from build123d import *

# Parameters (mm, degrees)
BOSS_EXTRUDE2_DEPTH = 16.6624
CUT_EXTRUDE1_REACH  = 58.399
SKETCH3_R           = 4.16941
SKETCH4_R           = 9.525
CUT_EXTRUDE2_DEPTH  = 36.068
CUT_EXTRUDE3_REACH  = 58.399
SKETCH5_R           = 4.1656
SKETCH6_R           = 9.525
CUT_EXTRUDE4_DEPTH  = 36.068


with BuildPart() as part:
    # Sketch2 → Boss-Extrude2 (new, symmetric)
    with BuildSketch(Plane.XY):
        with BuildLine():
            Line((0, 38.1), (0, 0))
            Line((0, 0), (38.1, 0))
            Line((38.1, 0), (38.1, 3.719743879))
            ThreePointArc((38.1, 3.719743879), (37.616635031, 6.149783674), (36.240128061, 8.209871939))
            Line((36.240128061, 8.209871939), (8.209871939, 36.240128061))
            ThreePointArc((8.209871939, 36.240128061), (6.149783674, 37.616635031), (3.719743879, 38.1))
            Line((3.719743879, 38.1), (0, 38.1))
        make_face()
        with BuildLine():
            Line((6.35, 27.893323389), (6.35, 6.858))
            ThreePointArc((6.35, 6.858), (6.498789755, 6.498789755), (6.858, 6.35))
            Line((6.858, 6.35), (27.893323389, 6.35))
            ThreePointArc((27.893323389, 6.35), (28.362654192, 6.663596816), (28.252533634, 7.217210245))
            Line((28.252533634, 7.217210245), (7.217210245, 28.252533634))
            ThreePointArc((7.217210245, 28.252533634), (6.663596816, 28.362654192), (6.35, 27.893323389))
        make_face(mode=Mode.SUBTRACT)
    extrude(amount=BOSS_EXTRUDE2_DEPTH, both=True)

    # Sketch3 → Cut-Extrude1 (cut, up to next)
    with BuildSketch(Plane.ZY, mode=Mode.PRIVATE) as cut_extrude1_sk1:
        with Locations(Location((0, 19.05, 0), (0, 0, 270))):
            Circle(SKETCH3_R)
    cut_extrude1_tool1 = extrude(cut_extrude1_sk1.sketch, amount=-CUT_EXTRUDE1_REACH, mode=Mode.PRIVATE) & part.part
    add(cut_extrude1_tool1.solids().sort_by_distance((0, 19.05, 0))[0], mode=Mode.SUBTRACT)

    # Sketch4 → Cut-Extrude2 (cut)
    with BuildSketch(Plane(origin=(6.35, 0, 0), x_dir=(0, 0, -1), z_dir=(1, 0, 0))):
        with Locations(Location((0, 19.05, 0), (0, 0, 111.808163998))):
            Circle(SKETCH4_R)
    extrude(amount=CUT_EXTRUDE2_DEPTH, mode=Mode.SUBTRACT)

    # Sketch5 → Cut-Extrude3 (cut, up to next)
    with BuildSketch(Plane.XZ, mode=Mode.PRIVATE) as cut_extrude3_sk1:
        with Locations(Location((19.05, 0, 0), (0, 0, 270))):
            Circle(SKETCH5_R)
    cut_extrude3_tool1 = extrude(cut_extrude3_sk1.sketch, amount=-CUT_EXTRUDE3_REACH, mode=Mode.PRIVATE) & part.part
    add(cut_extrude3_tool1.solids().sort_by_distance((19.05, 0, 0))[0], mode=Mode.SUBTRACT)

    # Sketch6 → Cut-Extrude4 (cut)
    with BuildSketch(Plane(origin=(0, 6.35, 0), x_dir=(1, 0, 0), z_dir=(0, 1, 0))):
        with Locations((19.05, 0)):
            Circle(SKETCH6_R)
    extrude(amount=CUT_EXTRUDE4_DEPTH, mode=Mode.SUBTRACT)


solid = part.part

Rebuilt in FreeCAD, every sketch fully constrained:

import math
import FreeCAD as App
import Part
import Sketcher
from FreeCAD import Vector
Q = App.Units.Quantity

doc = App.newDocument("Part")
body = doc.addObject("PartDesign::Body", "Body")

# Sketch on XY plane
sketch1 = body.newObject("Sketcher::SketchObject", "Sketch")
sketch1.AttachmentSupport = (doc.getObject("XY_Plane"), [""])
sketch1.MapMode = "FlatFace"
sketch1.addGeometry([
    Part.LineSegment(Vector(0, 38.1, 0), Vector(0, 0, 0)),  # 0
    Part.LineSegment(Vector(0, 0, 0), Vector(38.1, 0, 0)),  # 1
    Part.LineSegment(Vector(38.1, 0, 0), Vector(38.1, 3.719744, 0)),  # 2
    Part.ArcOfCircle(Part.Circle(Vector(31.75, 3.719744, 0), Vector(0, 0, 1), 6.35), math.radians(0), math.radians(45)),  # 3
    Part.LineSegment(Vector(36.240128, 8.209872, 0), Vector(8.209872, 36.240128, 0)),  # 4
    Part.ArcOfCircle(Part.Circle(Vector(3.719744, 31.75, 0), Vector(0, 0, 1), 6.35), math.radians(45), math.radians(90)),  # 5
    Part.LineSegment(Vector(3.719744, 38.1, 0), Vector(0, 38.1, 0)),  # 6
    Part.LineSegment(Vector(6.35, 6.858, 0), Vector(6.35, 27.893323, 0)),  # 7
    Part.ArcOfCircle(Part.Circle(Vector(6.858, 27.893323, 0), Vector(0, 0, 1), 0.508), math.radians(45), math.radians(180)),  # 8
    Part.LineSegment(Vector(7.21721, 28.252534, 0), Vector(28.252534, 7.21721, 0)),  # 9
    Part.ArcOfCircle(Part.Circle(Vector(27.893323, 6.858, 0), Vector(0, 0, 1), 0.508), math.radians(-90), math.radians(45)),  # 10
    Part.LineSegment(Vector(27.893323, 6.35, 0), Vector(6.858, 6.35, 0)),  # 11
    Part.ArcOfCircle(Part.Circle(Vector(6.858, 6.858, 0), Vector(0, 0, 1), 0.508), math.radians(180), math.radians(270)),  # 12
], False)
sketch1.addConstraint([
    Sketcher.Constraint("Coincident", 0, 2, 1, 1),
    Sketcher.Constraint("Coincident", 1, 2, 2, 1),
    Sketcher.Constraint("Tangent", 2, 2, 3, 1),
    Sketcher.Constraint("Tangent", 3, 2, 4, 1),
    Sketcher.Constraint("Tangent", 4, 2, 5, 1),
    Sketcher.Constraint("Tangent", 5, 2, 6, 1),
    Sketcher.Constraint("Coincident", 6, 2, 0, 1),
    Sketcher.Constraint("Tangent", 7, 2, 8, 2),
    Sketcher.Constraint("Tangent", 8, 1, 9, 1),
    Sketcher.Constraint("Tangent", 9, 2, 10, 2),
    Sketcher.Constraint("Tangent", 10, 1, 11, 1),
    Sketcher.Constraint("Tangent", 11, 2, 12, 2),
    Sketcher.Constraint("Tangent", 12, 1, 7, 1),
    Sketcher.Constraint("Vertical", 0),
    Sketcher.Constraint("Horizontal", 1),
    Sketcher.Constraint("Vertical", 2),
    Sketcher.Constraint("Horizontal", 6),
    Sketcher.Constraint("Vertical", 7),
    Sketcher.Constraint("Horizontal", 11),
    Sketcher.Constraint("Coincident", 0, 2, -1, 1),
    Sketcher.Constraint("Equal", 3, 5),
    Sketcher.Constraint("Equal", 8, 10),
    Sketcher.Constraint("Equal", 10, 12),
    Sketcher.Constraint("Parallel", 4, 9),
    Sketcher.Constraint("Equal", 1, 0),
    Sketcher.Constraint("Equal", 6, 2),
    Sketcher.Constraint("Radius", 3, Q("0.25 in")),
    Sketcher.Constraint("Radius", 8, Q("0.02 in")),
    Sketcher.Constraint("DistanceX", 1, 1, 1, 2, Q("1.5 in")),
    Sketcher.Constraint("DistanceX", -1, 1, 8, 3, Q("0.27 in")),
    Sketcher.Constraint("DistanceY", -1, 1, 10, 3, Q("0.27 in")),
    Sketcher.Constraint("Distance", 4, Q("39.640768 mm")),
    Sketcher.Constraint("Distance", 9, Q("29.74844 mm")),
])
pad1 = body.newObject("PartDesign::Pad", "Pad")
pad1.Profile = sketch1
pad1.Length = Q("1.312 in")
pad1.Midplane = True

# Sketch on YZ plane
sketch2 = body.newObject("Sketcher::SketchObject", "Sketch001")
sketch2.AttachmentSupport = (doc.getObject("YZ_Plane"), [""])
sketch2.MapMode = "FlatFace"
sketch2.addGeometry(Part.Circle(Vector(19.05, 0, 0), Vector(0, 0, 1), 4.16941), False)
sketch2.addConstraint([
    Sketcher.Constraint("PointOnObject", 0, 3, -1),
    Sketcher.Constraint("Diameter", 0, Q("0.3283 in")),
    Sketcher.Constraint("DistanceX", -1, 1, 0, 3, Q("0.75 in")),
])
pocket1 = body.newObject("PartDesign::Pocket", "Pocket")
pocket1.Profile = sketch2
pocket1.Type = "UpToFirst"
pocket1.Reversed = True

# Sketch on YZ plane
sketch3 = body.newObject("Sketcher::SketchObject", "Sketch002")
sketch3.AttachmentSupport = (doc.getObject("YZ_Plane"), [""])
sketch3.MapMode = "FlatFace"
sketch3.AttachmentOffset = App.Placement(Vector(0, 0, 0.25 * 25.4), App.Rotation())
sketch3.addGeometry(Part.Circle(Vector(19.05, 0, 0), Vector(0, 0, 1), 9.525), False)
sketch3.addConstraint([
    Sketcher.Constraint("PointOnObject", 0, 3, -1),
    Sketcher.Constraint("Diameter", 0, Q("0.75 in")),
    Sketcher.Constraint("DistanceX", -1, 1, 0, 3, Q("0.75 in")),
])
pocket2 = body.newObject("PartDesign::Pocket", "Pocket001")
pocket2.Profile = sketch3
pocket2.Length = Q("1.42 in")
pocket2.Reversed = True

# Sketch on XZ plane
sketch4 = body.newObject("Sketcher::SketchObject", "Sketch003")
sketch4.AttachmentSupport = (doc.getObject("XZ_Plane"), [""])
sketch4.MapMode = "FlatFace"
sketch4.addGeometry(Part.Circle(Vector(19.05, 0, 0), Vector(0, 0, 1), 4.1656), False)
sketch4.addConstraint([
    Sketcher.Constraint("PointOnObject", 0, 3, -1),
    Sketcher.Constraint("Diameter", 0, Q("0.328 in")),
    Sketcher.Constraint("DistanceX", -1, 1, 0, 3, Q("0.75 in")),
])
pocket3 = body.newObject("PartDesign::Pocket", "Pocket002")
pocket3.Profile = sketch4
pocket3.Type = "UpToFirst"

# Sketch on XZ plane
sketch5 = body.newObject("Sketcher::SketchObject", "Sketch004")
sketch5.AttachmentSupport = (doc.getObject("XZ_Plane"), [""])
sketch5.MapMode = "FlatFace"
sketch5.AttachmentOffset = App.Placement(Vector(0, 0, -0.25 * 25.4), App.Rotation())
sketch5.addGeometry(Part.Circle(Vector(19.05, 0, 0), Vector(0, 0, 1), 9.525), False)
sketch5.addConstraint([
    Sketcher.Constraint("PointOnObject", 0, 3, -1),
    Sketcher.Constraint("Diameter", 0, Q("0.75 in")),
    Sketcher.Constraint("DistanceX", -1, 1, 0, 3, Q("0.75 in")),
])
pocket4 = body.newObject("PartDesign::Pocket", "Pocket003")
pocket4.Profile = sketch5
pocket4.Length = Q("1.42 in")

doc.recompute()
